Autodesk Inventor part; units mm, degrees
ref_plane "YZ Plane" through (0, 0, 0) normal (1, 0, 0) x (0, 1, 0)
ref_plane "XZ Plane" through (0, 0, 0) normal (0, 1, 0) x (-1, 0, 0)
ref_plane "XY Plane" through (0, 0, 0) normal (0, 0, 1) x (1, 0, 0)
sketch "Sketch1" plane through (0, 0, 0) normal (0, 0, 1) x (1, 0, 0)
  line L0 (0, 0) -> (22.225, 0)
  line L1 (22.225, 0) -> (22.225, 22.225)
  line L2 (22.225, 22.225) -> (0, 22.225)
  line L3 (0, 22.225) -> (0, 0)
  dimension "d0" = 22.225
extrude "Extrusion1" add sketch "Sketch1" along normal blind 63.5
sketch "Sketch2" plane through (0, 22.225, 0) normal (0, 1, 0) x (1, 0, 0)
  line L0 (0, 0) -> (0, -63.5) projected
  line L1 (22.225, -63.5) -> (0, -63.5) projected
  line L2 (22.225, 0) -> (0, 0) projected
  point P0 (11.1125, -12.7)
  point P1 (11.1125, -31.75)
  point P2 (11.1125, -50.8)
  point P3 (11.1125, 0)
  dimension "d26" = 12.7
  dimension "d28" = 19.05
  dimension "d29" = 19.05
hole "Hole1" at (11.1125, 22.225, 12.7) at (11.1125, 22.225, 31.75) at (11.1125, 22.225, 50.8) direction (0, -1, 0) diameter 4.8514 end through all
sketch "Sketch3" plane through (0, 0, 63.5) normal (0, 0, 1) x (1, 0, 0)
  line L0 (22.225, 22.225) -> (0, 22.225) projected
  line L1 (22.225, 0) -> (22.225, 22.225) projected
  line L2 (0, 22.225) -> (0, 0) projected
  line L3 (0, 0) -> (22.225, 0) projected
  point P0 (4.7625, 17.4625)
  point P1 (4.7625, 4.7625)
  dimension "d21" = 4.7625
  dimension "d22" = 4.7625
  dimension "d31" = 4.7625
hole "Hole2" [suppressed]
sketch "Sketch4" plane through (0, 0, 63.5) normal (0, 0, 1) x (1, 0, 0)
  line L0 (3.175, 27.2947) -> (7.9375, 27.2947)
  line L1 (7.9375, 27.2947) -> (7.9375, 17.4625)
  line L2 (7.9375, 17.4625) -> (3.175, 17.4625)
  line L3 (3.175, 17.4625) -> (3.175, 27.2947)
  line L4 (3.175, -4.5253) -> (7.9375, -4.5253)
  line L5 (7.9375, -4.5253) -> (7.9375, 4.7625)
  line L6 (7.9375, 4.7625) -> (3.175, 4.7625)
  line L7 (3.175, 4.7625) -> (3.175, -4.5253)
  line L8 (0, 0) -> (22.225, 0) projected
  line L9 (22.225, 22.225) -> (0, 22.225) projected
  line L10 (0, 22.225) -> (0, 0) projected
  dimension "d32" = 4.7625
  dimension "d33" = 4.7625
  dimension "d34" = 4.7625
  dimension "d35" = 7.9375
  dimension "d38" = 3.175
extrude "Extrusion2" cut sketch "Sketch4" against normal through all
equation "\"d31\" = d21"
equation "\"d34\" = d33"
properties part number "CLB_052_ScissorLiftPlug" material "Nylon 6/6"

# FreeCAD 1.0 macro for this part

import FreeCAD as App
import Part
import Sketcher
from FreeCAD import Vector
Q = App.Units.Quantity


def add_polygon(sketch, points):
    """Adds a closed chain of lines whose ends are joined by coincident constraints."""
    first, n = sketch.GeometryCount, len(points)
    for a, b in zip(points, points[1:] + points[:1]):
        sketch.addGeometry(Part.LineSegment(App.Vector(*a, 0), App.Vector(*b, 0)), False)
    for i in range(n):
        sketch.addConstraint(Sketcher.Constraint("Coincident", first + i, 2, first + (i + 1) % n, 1))

doc = App.newDocument("Part")
params = doc.addObject("Spreadsheet::Sheet", "Params")
for row, (alias, value) in enumerate([
    ("sketch1_width", "0.875 in"),
    ("pad1_length", "2.5 in"),
    ("sketch2_diameter", "0.191 in"),
    ("hole_diameter", "0.191 in"),
    ("sketch3_width", "0.1875 in"),
], start=1):
    params.set(f"A{row}", alias)
    params.set(f"B{row}", "=" + value)
    params.setAlias(f"B{row}", alias)

body = doc.addObject("PartDesign::Body", "Body")

# Sketch on XY plane
sketch1 = body.newObject("Sketcher::SketchObject", "Sketch")
sketch1.AttachmentSupport = (doc.getObject("XY_Plane"), [""])
sketch1.MapMode = "FlatFace"
add_polygon(sketch1, [(0, 22), (0, 0), (22, 0), (22, 22)])  # lines 0-3
sketch1.addConstraint(Sketcher.Constraint("Vertical", 0))
sketch1.addConstraint(Sketcher.Constraint("Horizontal", 1))
sketch1.addConstraint(Sketcher.Constraint("Vertical", 2))
sketch1.addConstraint(Sketcher.Constraint("Horizontal", 3))
sketch1.addConstraint(Sketcher.Constraint("Coincident", 0, 2, -1, 1))
sketch1.addConstraint(Sketcher.Constraint("Equal", 3, 0))
sketch1.addConstraint(Sketcher.Constraint("DistanceX", 1, 1, 1, 2, Q("0.875 in")))
sketch1.setExpression("Constraints[10]", "Params.sketch1_width")
pad1 = body.newObject("PartDesign::Pad", "Pad")
pad1.Profile = sketch1
pad1.setExpression("Length", "Params.pad1_length")

# Sketch on XZ plane
sketch2 = body.newObject("Sketcher::SketchObject", "Sketch001")
sketch2.AttachmentSupport = (doc.getObject("XZ_Plane"), [""])
sketch2.MapMode = "FlatFace"
sketch2.AttachmentOffset = App.Placement(Vector(0, 0, -0.875 * 25.4), App.Rotation())
sketch2.addGeometry(Part.Circle(Vector(11.1, 12.7, 0), Vector(0, 0, 1), 2.4), False)
sketch2.addGeometry(Part.Circle(Vector(11.1, 31.8, 0), Vector(0, 0, 1), 2.4), False)
sketch2.addGeometry(Part.Circle(Vector(11.1, 50.8, 0), Vector(0, 0, 1), 2.4), False)
sketch2.addConstraint(Sketcher.Constraint("Equal", 0, 1))
sketch2.addConstraint(Sketcher.Constraint("Equal", 1, 2))
sketch2.addConstraint(Sketcher.Constraint("Vertical", 0, 3, 1, 3))
sketch2.addConstraint(Sketcher.Constraint("Vertical", 1, 3, 2, 3))
sketch2.addConstraint(Sketcher.Constraint("Diameter", 0, Q("0.191 in")))
sketch2.addConstraint(Sketcher.Constraint("DistanceY", -1, 1, 2, 3, Q("2 in")))
sketch2.addConstraint(Sketcher.Constraint("DistanceY", -1, 1, 0, 3, Q("0.5 in")))
sketch2.addConstraint(Sketcher.Constraint("DistanceY", -1, 1, 1, 3, Q("1.25 in")))
sketch2.addConstraint(Sketcher.Constraint("DistanceX", -1, 1, 0, 3, Q("0.4375 in")))
sketch2.setExpression("Constraints[4]", "Params.sketch2_diameter")
doc.recompute()
hole = body.newObject("PartDesign::Hole", "Hole")
hole.Profile = sketch2
hole.ThreadType = "None"
hole.setExpression("Diameter", "Params.hole_diameter")
hole.DepthType = "ThroughAll"
hole.Reversed = True

# Sketch on XY plane
sketch3 = body.newObject("Sketcher::SketchObject", "Sketch002")
sketch3.AttachmentSupport = (doc.getObject("XY_Plane"), [""])
sketch3.MapMode = "FlatFace"
sketch3.AttachmentOffset = App.Placement(Vector(0, 0, 2.5 * 25.4), App.Rotation())
add_polygon(sketch3, [(3.2, 4.8), (3.2, -4.5), (7.9, -4.5), (7.9, 4.8)])  # lines 0-3
add_polygon(sketch3, [(7.9, 27.3), (3.2, 27.3), (3.2, 17.5), (7.9, 17.5)])  # lines 4-7
sketch3.addConstraint(Sketcher.Constraint("Vertical", 0))
sketch3.addConstraint(Sketcher.Constraint("Horizontal", 1))
sketch3.addConstraint(Sketcher.Constraint("Vertical", 2))
sketch3.addConstraint(Sketcher.Constraint("Horizontal", 3))
sketch3.addConstraint(Sketcher.Constraint("Horizontal", 4))
sketch3.addConstraint(Sketcher.Constraint("Vertical", 5))
sketch3.addConstraint(Sketcher.Constraint("Horizontal", 6))
sketch3.addConstraint(Sketcher.Constraint("Vertical", 7))
sketch3.addConstraint(Sketcher.Constraint("Vertical", 3, 2, 4, 2))
sketch3.addConstraint(Sketcher.Constraint("Vertical", 2, 2, 6, 2))
sketch3.addConstraint(Sketcher.Constraint("DistanceX", 1, 1, 1, 2, Q("0.1875 in")))
sketch3.addConstraint(Sketcher.Constraint("DistanceX", -1, 1, 0, 2, Q("0.125 in")))
sketch3.addConstraint(Sketcher.Constraint("DistanceY", -1, 1, 2, 2, Q("0.1875 in")))
sketch3.addConstraint(Sketcher.Constraint("DistanceY", 3, 2, 5, 2, Q("0.5 in")))
sketch3.addConstraint(Sketcher.Constraint("DistanceY", 5, 2, 5, 1, Q("0.3871 in")))
sketch3.addConstraint(Sketcher.Constraint("DistanceY", 0, 2, 0, 1, 9.2878))
sketch3.setExpression("Constraints[18]", "Params.sketch3_width")
pocket1 = body.newObject("PartDesign::Pocket", "Pocket")
pocket1.Profile = sketch3
pocket1.Type = "ThroughAll"

doc.recompute()
